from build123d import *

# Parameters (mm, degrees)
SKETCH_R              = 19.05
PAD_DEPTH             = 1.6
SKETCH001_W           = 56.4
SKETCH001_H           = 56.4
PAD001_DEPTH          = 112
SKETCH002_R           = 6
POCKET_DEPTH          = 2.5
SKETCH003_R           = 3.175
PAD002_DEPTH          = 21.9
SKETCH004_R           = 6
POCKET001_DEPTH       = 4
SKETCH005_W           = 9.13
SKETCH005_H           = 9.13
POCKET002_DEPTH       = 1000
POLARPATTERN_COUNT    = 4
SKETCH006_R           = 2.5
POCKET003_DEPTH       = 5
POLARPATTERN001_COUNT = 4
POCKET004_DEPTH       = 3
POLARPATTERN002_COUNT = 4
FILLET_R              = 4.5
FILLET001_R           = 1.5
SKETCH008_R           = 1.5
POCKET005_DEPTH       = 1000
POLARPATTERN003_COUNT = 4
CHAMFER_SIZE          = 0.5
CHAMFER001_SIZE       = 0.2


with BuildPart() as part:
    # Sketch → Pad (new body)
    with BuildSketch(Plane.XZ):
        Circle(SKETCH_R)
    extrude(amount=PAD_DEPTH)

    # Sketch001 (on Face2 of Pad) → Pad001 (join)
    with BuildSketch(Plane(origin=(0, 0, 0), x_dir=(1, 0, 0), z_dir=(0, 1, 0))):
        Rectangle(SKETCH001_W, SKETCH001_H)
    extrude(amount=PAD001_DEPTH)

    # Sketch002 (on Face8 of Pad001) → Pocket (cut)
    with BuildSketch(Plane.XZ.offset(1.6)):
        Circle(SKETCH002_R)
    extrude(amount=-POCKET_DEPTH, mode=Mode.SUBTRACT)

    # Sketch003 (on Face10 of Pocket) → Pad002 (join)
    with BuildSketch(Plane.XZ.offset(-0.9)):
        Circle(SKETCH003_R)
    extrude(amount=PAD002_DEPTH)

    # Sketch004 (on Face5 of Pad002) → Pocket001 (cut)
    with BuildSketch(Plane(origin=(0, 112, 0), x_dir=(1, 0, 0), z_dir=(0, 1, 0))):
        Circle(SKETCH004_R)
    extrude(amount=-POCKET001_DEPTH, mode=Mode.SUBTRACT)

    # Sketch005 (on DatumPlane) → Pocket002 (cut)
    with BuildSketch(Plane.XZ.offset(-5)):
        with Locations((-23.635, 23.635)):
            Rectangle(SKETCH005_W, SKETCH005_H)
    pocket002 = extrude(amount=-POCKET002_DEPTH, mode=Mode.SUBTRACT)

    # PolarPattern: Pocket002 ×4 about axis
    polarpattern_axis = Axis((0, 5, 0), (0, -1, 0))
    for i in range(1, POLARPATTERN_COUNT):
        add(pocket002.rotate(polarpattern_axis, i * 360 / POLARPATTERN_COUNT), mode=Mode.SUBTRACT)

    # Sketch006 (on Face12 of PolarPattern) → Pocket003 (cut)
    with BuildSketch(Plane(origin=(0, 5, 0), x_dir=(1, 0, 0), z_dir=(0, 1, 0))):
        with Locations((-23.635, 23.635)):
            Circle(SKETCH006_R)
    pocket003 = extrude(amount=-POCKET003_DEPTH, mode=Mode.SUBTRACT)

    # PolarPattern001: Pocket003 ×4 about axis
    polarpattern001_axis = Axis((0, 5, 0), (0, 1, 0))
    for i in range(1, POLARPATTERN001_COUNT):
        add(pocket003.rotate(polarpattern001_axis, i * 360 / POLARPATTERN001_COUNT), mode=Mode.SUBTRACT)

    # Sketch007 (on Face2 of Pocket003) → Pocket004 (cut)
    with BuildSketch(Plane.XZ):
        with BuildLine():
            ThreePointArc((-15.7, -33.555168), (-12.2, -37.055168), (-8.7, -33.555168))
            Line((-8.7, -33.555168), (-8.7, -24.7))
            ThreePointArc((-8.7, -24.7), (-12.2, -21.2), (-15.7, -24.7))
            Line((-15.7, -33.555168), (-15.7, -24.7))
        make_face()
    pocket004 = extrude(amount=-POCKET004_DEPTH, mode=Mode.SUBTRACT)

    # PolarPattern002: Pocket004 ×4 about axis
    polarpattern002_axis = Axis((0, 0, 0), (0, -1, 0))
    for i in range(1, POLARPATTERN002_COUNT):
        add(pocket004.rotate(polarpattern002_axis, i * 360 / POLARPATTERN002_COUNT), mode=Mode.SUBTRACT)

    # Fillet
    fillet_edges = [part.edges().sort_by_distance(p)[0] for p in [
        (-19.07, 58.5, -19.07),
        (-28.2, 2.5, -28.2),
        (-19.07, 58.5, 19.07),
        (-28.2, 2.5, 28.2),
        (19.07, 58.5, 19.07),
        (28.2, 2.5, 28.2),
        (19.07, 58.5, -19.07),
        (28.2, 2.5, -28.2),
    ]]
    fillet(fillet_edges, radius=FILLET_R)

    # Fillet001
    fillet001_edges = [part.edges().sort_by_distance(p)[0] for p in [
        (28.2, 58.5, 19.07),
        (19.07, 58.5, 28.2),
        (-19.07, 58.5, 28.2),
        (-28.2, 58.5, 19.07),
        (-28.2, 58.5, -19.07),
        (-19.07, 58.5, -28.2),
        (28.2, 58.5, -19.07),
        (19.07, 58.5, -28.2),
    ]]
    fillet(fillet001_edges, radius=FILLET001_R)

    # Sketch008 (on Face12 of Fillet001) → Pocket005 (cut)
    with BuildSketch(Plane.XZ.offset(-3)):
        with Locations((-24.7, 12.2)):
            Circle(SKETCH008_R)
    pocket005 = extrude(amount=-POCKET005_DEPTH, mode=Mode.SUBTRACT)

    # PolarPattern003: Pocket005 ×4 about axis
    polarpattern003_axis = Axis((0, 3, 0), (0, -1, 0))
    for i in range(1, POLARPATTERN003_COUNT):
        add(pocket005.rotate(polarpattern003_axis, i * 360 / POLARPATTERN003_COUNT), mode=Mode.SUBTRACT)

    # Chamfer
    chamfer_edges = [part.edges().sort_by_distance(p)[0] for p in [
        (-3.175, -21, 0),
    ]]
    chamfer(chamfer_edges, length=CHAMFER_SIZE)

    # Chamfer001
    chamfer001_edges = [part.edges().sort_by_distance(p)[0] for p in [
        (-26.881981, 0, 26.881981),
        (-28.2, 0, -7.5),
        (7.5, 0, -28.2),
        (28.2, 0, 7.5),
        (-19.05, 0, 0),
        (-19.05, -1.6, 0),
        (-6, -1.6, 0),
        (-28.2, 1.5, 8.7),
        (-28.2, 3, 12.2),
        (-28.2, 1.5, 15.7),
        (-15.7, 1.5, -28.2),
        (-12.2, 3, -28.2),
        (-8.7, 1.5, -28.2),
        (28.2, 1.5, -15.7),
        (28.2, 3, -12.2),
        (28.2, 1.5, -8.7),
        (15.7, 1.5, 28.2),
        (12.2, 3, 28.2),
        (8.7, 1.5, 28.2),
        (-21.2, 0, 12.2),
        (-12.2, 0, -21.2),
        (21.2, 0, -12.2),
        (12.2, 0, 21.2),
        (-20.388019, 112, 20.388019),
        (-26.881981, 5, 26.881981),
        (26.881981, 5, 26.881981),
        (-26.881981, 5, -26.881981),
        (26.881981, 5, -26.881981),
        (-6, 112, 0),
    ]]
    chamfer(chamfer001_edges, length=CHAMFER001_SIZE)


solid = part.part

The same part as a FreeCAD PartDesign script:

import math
import FreeCAD as App
import Part
import Sketcher

V = App.Vector


def edges_at(feature, points):
    """Names of the edges that pass closest to the given points."""
    edges = feature.Shape.Edges
    near = lambda p: min(range(len(edges)), key=lambda i: edges[i].distToShape(Part.Vertex(*p))[0])
    return sorted({f"Edge{near(p) + 1}" for p in points})

doc = App.newDocument("Part")
body = doc.addObject("PartDesign::Body", "Body")

sketch1 = doc.addObject("Sketcher::SketchObject", "Sketch")
body.addObject(sketch1)
sketch1.AttachmentSupport = (doc.XZ_Plane, [""])
sketch1.MapMode = "FlatFace"
sketch1.addGeometry(Part.Circle(V(0, 0, 0), V(0, 0, 1), 19), False)
sketch1.addConstraint(Sketcher.Constraint("Coincident", 0, 3, -1, 1))
sketch1.addConstraint(Sketcher.Constraint("Diameter", 0, 38.1))
pad1 = doc.addObject("PartDesign::Pad", "Pad")
body.addObject(pad1)
pad1.Profile = sketch1
pad1.Length = 1.6

sketch2 = doc.addObject("Sketcher::SketchObject", "Sketch001")
body.addObject(sketch2)
sketch2.AttachmentSupport = (doc.XZ_Plane, [""])
sketch2.MapMode = "FlatFace"
sketch2.addGeometry(Part.LineSegment(V(-28, -28, 0), V(-28, 28, 0)), False)
sketch2.addGeometry(Part.LineSegment(V(-28, 28, 0), V(28, 28, 0)), False)
sketch2.addGeometry(Part.LineSegment(V(28, 28, 0), V(28, -28, 0)), False)
sketch2.addGeometry(Part.LineSegment(V(28, -28, 0), V(-28, -28, 0)), False)
sketch2.addConstraint(Sketcher.Constraint("Coincident", 0, 2, 1, 1))
sketch2.addConstraint(Sketcher.Constraint("Coincident", 1, 2, 2, 1))
sketch2.addConstraint(Sketcher.Constraint("Coincident", 2, 2, 3, 1))
sketch2.addConstraint(Sketcher.Constraint("Coincident", 3, 2, 0, 1))
sketch2.addConstraint(Sketcher.Constraint("Vertical", 0))
sketch2.addConstraint(Sketcher.Constraint("Horizontal", 1))
sketch2.addConstraint(Sketcher.Constraint("Vertical", 2))
sketch2.addConstraint(Sketcher.Constraint("Horizontal", 3))
sketch2.addConstraint(Sketcher.Constraint("Symmetric", 0, 2, 2, 2, -1, 1))
sketch2.addConstraint(Sketcher.Constraint("Equal", 3, 0))
sketch2.addConstraint(Sketcher.Constraint("DistanceX", 1, 1, 1, 2, 56.4))
pad2 = doc.addObject("PartDesign::Pad", "Pad001")
body.addObject(pad2)
pad2.Profile = sketch2
pad2.Length = 112
pad2.Reversed = True

sketch3 = doc.addObject("Sketcher::SketchObject", "Sketch002")
body.addObject(sketch3)
sketch3.AttachmentSupport = (doc.XZ_Plane, [""])
sketch3.MapMode = "FlatFace"
sketch3.AttachmentOffset = App.Placement(V(0, 0, 1.6), App.Rotation())
sketch3.addGeometry(Part.Circle(V(0, 0, 0), V(0, 0, 1), 6), False)
sketch3.addConstraint(Sketcher.Constraint("Coincident", 0, 3, -1, 1))
sketch3.addConstraint(Sketcher.Constraint("Diameter", 0, 12.0))
pocket1 = doc.addObject("PartDesign::Pocket", "Pocket")
body.addObject(pocket1)
pocket1.Profile = sketch3
pocket1.Length = 2.5

sketch4 = doc.addObject("Sketcher::SketchObject", "Sketch003")
body.addObject(sketch4)
sketch4.AttachmentSupport = (doc.XZ_Plane, [""])
sketch4.MapMode = "FlatFace"
sketch4.AttachmentOffset = App.Placement(V(0, 0, -0.9), App.Rotation())
sketch4.addGeometry(Part.Circle(V(0, 0, 0), V(0, 0, 1), 3.2), False)
sketch4.addConstraint(Sketcher.Constraint("Coincident", 0, 3, -1, 1))
sketch4.addConstraint(Sketcher.Constraint("Diameter", 0, 6.35))
pad3 = doc.addObject("PartDesign::Pad", "Pad002")
body.addObject(pad3)
pad3.Profile = sketch4
pad3.Length = 21.9

sketch5 = doc.addObject("Sketcher::SketchObject", "Sketch004")
body.addObject(sketch5)
sketch5.AttachmentSupport = (doc.XZ_Plane, [""])
sketch5.MapMode = "FlatFace"
sketch5.AttachmentOffset = App.Placement(V(0, 0, -112), App.Rotation())
sketch5.addGeometry(Part.Circle(V(0, 0, 0), V(0, 0, 1), 6), False)
sketch5.addConstraint(Sketcher.Constraint("Coincident", 0, 3, -1, 1))
sketch5.addConstraint(Sketcher.Constraint("Diameter", 0, 12.0))
pocket2 = doc.addObject("PartDesign::Pocket", "Pocket001")
body.addObject(pocket2)
pocket2.Profile = sketch5
pocket2.Length = 4
pocket2.Reversed = True

sketch6 = doc.addObject("Sketcher::SketchObject", "Sketch005")
body.addObject(sketch6)
sketch6.AttachmentSupport = (doc.XZ_Plane, [""])
sketch6.MapMode = "FlatFace"
sketch6.AttachmentOffset = App.Placement(V(0, 0, -5), App.Rotation())
sketch6.addGeometry(Part.LineSegment(V(-28, 28, 0), V(-28, 19, 0)), False)
sketch6.addGeometry(Part.LineSegment(V(-28, 19, 0), V(-19, 19, 0)), False)
sketch6.addGeometry(Part.LineSegment(V(-19, 19, 0), V(-19, 28, 0)), False)
sketch6.addGeometry(Part.LineSegment(V(-19, 28, 0), V(-28, 28, 0)), False)
sketch6.addConstraint(Sketcher.Constraint("Coincident", 0, 2, 1, 1))
sketch6.addConstraint(Sketcher.Constraint("Coincident", 1, 2, 2, 1))
sketch6.addConstraint(Sketcher.Constraint("Coincident", 2, 2, 3, 1))
sketch6.addConstraint(Sketcher.Constraint("Coincident", 3, 2, 0, 1))
sketch6.addConstraint(Sketcher.Constraint("Vertical", 0))
sketch6.addConstraint(Sketcher.Constraint("Horizontal", 1))
sketch6.addConstraint(Sketcher.Constraint("Vertical", 2))
sketch6.addConstraint(Sketcher.Constraint("Horizontal", 3))
sketch6.addConstraint(Sketcher.Constraint("Equal", 3, 0))
sketch6.addConstraint(Sketcher.Constraint("DistanceX", 1, 1, 1, 2, 9.13))
sketch6.addConstraint(Sketcher.Constraint("DistanceX", 0, 2, -1, 1, 28.2))
sketch6.addConstraint(Sketcher.Constraint("DistanceY", -1, 1, 2, 2, 28.2))
pocket3 = doc.addObject("PartDesign::Pocket", "Pocket002")
body.addObject(pocket3)
pocket3.Profile = sketch6
pocket3.Length = 1000
doc.recompute()

polarpattern = doc.addObject("PartDesign::PolarPattern", "PolarPattern")
body.addObject(polarpattern)
polarpattern.Originals = [pocket3]
polarpattern.Axis = (doc.Y_Axis, [""])
polarpattern.Angle = 360
polarpattern.Occurrences = 4
body.Tip = polarpattern

sketch7 = doc.addObject("Sketcher::SketchObject", "Sketch006")
body.addObject(sketch7)
sketch7.AttachmentSupport = (doc.XZ_Plane, [""])
sketch7.MapMode = "FlatFace"
sketch7.AttachmentOffset = App.Placement(V(0, 0, -5), App.Rotation())
sketch7.addGeometry(Part.Circle(V(-23.6, -23.6, 0), V(0, 0, 1), 2.5), False)
sketch7.addConstraint(Sketcher.Constraint("Diameter", 0, 5.0))
sketch7.addConstraint(Sketcher.Constraint("DistanceX", 0, 3, -1, 1, 23.635))
sketch7.addConstraint(Sketcher.Constraint("DistanceY", 0, 3, -1, 1, 23.635))
pocket4 = doc.addObject("PartDesign::Pocket", "Pocket003")
body.addObject(pocket4)
pocket4.Profile = sketch7
pocket4.Length = 5
pocket4.Reversed = True
doc.recompute()

polarpattern2 = doc.addObject("PartDesign::PolarPattern", "PolarPattern001")
body.addObject(polarpattern2)
polarpattern2.Originals = [pocket4]
polarpattern2.Axis = (doc.Y_Axis, [""])
polarpattern2.Angle = 360
polarpattern2.Occurrences = 4
body.Tip = polarpattern2

sketch8 = doc.addObject("Sketcher::SketchObject", "Sketch007")
body.addObject(sketch8)
sketch8.AttachmentSupport = (doc.XZ_Plane, [""])
sketch8.MapMode = "FlatFace"
sketch8.addGeometry(Part.ArcOfCircle(Part.Circle(V(-12.2, -33.6, 0), V(0, 0, 1), 3.5), math.radians(180), math.radians(360)), False)
sketch8.addGeometry(Part.LineSegment(V(-8.7, -33.6, 0), V(-8.7, -24.7, 0)), False)
sketch8.addGeometry(Part.ArcOfCircle(Part.Circle(V(-12.2, -24.7, 0), V(0, 0, 1), 3.5), math.radians(0), math.radians(180)), False)
sketch8.addGeometry(Part.LineSegment(V(-15.7, -24.7, 0), V(-15.7, -33.6, 0)), False)
sketch8.addConstraint(Sketcher.Constraint("Tangent", 0, 2, 1, 1))
sketch8.addConstraint(Sketcher.Constraint("Tangent", 1, 2, 2, 1))
sketch8.addConstraint(Sketcher.Constraint("Tangent", 2, 2, 3, 1))
sketch8.addConstraint(Sketcher.Constraint("Tangent", 3, 2, 0, 1))
sketch8.addConstraint(Sketcher.Constraint("Vertical", 1))
sketch8.addConstraint(Sketcher.Constraint("Vertical", 3))
sketch8.addConstraint(Sketcher.Constraint("Radius", 0, 3.5))
sketch8.addConstraint(Sketcher.Constraint("DistanceX", 0, 3, -1, 1, 12.2))
sketch8.addConstraint(Sketcher.Constraint("DistanceY", 2, 3, -1, 1, 24.7))
sketch8.addConstraint(Sketcher.Constraint("DistanceY", 1, 1, 1, 2, 8.855168))
pocket5 = doc.addObject("PartDesign::Pocket", "Pocket004")
body.addObject(pocket5)
pocket5.Profile = sketch8
pocket5.Length = 3
doc.recompute()

polarpattern3 = doc.addObject("PartDesign::PolarPattern", "PolarPattern002")
body.addObject(polarpattern3)
polarpattern3.Originals = [pocket5]
polarpattern3.Axis = (doc.Y_Axis, [""])
polarpattern3.Angle = 360
polarpattern3.Occurrences = 4
body.Tip = polarpattern3
doc.recompute()

fillet = doc.addObject("PartDesign::Fillet", "Fillet")
body.addObject(fillet)
fillet.Base = (polarpattern3, edges_at(polarpattern3, [
    (-19.07, 58.5, -19.07),
    (-28.2, 2.5, -28.2),
    (-19.07, 58.5, 19.07),
    (-28.2, 2.5, 28.2),
    (19.07, 58.5, 19.07),
    (28.2, 2.5, 28.2),
    (19.07, 58.5, -19.07),
    (28.2, 2.5, -28.2),
]))
fillet.Radius = 4.5
doc.recompute()

fillet2 = doc.addObject("PartDesign::Fillet", "Fillet001")
body.addObject(fillet2)
fillet2.Base = (fillet, edges_at(fillet, [
    (28.2, 58.5, 19.07),
    (19.07, 58.5, 28.2),
    (-19.07, 58.5, 28.2),
    (-28.2, 58.5, 19.07),
    (-28.2, 58.5, -19.07),
    (-19.07, 58.5, -28.2),
    (28.2, 58.5, -19.07),
    (19.07, 58.5, -28.2),
]))
fillet2.Radius = 1.5

sketch9 = doc.addObject("Sketcher::SketchObject", "Sketch008")
body.addObject(sketch9)
sketch9.AttachmentSupport = (doc.XZ_Plane, [""])
sketch9.MapMode = "FlatFace"
sketch9.AttachmentOffset = App.Placement(V(0, 0, -3), App.Rotation())
sketch9.addGeometry(Part.Circle(V(-24.7, 12.2, 0), V(0, 0, 1), 1.5), False)
sketch9.addConstraint(Sketcher.Constraint("Diameter", 0, 3.0))
sketch9.addConstraint(Sketcher.Constraint("DistanceX", 0, 3, -1, 1, 24.7))
sketch9.addConstraint(Sketcher.Constraint("DistanceY", -1, 1, 0, 3, 12.2))
pocket6 = doc.addObject("PartDesign::Pocket", "Pocket005")
body.addObject(pocket6)
pocket6.Profile = sketch9
pocket6.Length = 1000
doc.recompute()

polarpattern4 = doc.addObject("PartDesign::PolarPattern", "PolarPattern003")
body.addObject(polarpattern4)
polarpattern4.Originals = [pocket6]
polarpattern4.Axis = (doc.Y_Axis, [""])
polarpattern4.Angle = 360
polarpattern4.Occurrences = 4
body.Tip = polarpattern4
doc.recompute()

chamfer = doc.addObject("PartDesign::Chamfer", "Chamfer")
body.addObject(chamfer)
chamfer.Base = (polarpattern4, edges_at(polarpattern4, [(-3.175, -21, 0)]))
chamfer.Size = 0.5
doc.recompute()

chamfer2 = doc.addObject("PartDesign::Chamfer", "Chamfer001")
body.addObject(chamfer2)
chamfer2.Base = (chamfer, edges_at(chamfer, [
    (-26.882, 0, 26.882),
    (-28.2, 0, -7.5),
    (7.5, 0, -28.2),
    (28.2, 0, 7.5),
    (-19.05, 0, 0),
    (-19.05, -1.6, 0),
    (-6, -1.6, 0),
    (-28.2, 1.5, 8.7),
    (-28.2, 3, 12.2),
    (-28.2, 1.5, 15.7),
    (-15.7, 1.5, -28.2),
    (-12.2, 3, -28.2),
    (-8.7, 1.5, -28.2),
    (28.2, 1.5, -15.7),
    (28.2, 3, -12.2),
    (28.2, 1.5, -8.7),
    (15.7, 1.5, 28.2),
    (12.2, 3, 28.2),
    (8.7, 1.5, 28.2),
    (-21.2, 0, 12.2),
    (-12.2, 0, -21.2),
    (21.2, 0, -12.2),
    (12.2, 0, 21.2),
    (-20.388, 112, 20.388),
    (-26.882, 5, 26.882),
    (26.882, 5, 26.882),
    (-26.882, 5, -26.882),
    (26.882, 5, -26.882),
    (-6, 112, 0),
]))
chamfer2.Size = 0.2

doc.recompute()
